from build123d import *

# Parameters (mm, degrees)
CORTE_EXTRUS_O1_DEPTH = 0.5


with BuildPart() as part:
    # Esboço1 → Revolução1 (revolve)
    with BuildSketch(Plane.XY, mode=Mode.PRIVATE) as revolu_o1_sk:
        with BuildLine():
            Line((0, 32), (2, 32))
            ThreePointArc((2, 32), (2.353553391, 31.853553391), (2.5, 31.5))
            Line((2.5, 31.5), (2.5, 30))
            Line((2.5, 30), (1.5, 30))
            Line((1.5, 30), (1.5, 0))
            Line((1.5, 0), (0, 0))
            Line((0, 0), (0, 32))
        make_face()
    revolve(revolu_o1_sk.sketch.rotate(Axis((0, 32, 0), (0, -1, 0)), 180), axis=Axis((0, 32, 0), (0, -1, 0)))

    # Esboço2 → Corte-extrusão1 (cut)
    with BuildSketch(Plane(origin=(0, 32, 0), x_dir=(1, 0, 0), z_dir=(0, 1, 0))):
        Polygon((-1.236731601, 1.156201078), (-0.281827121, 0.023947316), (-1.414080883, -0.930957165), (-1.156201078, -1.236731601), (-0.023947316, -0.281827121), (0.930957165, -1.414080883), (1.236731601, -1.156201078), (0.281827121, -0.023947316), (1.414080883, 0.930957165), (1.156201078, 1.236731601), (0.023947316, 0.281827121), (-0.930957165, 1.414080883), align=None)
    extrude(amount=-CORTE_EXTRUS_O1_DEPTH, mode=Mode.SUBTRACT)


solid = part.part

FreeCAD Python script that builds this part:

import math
import FreeCAD as App
import Part
import Sketcher

V = App.Vector


def add_polygon(sketch, points):
    """Adds a closed chain of lines whose ends are joined by coincident constraints."""
    first, n = sketch.GeometryCount, len(points)
    for a, b in zip(points, points[1:] + points[:1]):
        sketch.addGeometry(Part.LineSegment(App.Vector(*a, 0), App.Vector(*b, 0)), False)
    for i in range(n):
        sketch.addConstraint(Sketcher.Constraint("Coincident", first + i, 2, first + (i + 1) % n, 1))

doc = App.newDocument("Part")
body = doc.addObject("PartDesign::Body", "Body")

# Sketch on XY plane
sketch1 = body.newObject("Sketcher::SketchObject", "Sketch")
sketch1.AttachmentSupport = (doc.getObject("XY_Plane"), [""])
sketch1.MapMode = "FlatFace"
sketch1.addGeometry(Part.LineSegment(V(2, 32, 0), V(0, 32, 0)), False)
sketch1.addGeometry(Part.LineSegment(V(0, 32, 0), V(0, 0, 0)), False)
sketch1.addGeometry(Part.LineSegment(V(0, 0, 0), V(1.5, 0, 0)), False)
sketch1.addGeometry(Part.LineSegment(V(1.5, 0, 0), V(1.5, 30, 0)), False)
sketch1.addGeometry(Part.LineSegment(V(1.5, 30, 0), V(2.5, 30, 0)), False)
sketch1.addGeometry(Part.LineSegment(V(2.5, 30, 0), V(2.5, 31.5, 0)), False)
sketch1.addGeometry(Part.ArcOfCircle(Part.Circle(V(2, 31.5, 0), V(0, 0, 1), 0.5), math.radians(0), math.radians(90)), False)
sketch1.addConstraint(Sketcher.Constraint("Coincident", 0, 2, 1, 1))
sketch1.addConstraint(Sketcher.Constraint("Coincident", 1, 2, 2, 1))
sketch1.addConstraint(Sketcher.Constraint("Coincident", 2, 2, 3, 1))
sketch1.addConstraint(Sketcher.Constraint("Coincident", 3, 2, 4, 1))
sketch1.addConstraint(Sketcher.Constraint("Coincident", 4, 2, 5, 1))
sketch1.addConstraint(Sketcher.Constraint("Tangent", 5, 2, 6, 1))
sketch1.addConstraint(Sketcher.Constraint("Tangent", 6, 2, 0, 1))
sketch1.addConstraint(Sketcher.Constraint("Horizontal", 0))
sketch1.addConstraint(Sketcher.Constraint("Vertical", 1))
sketch1.addConstraint(Sketcher.Constraint("Horizontal", 2))
sketch1.addConstraint(Sketcher.Constraint("Vertical", 3))
sketch1.addConstraint(Sketcher.Constraint("Horizontal", 4))
sketch1.addConstraint(Sketcher.Constraint("Vertical", 5))
sketch1.addConstraint(Sketcher.Constraint("Coincident", 1, 2, -1, 1))
sketch1.addConstraint(Sketcher.Constraint("Equal", 2, 5))
sketch1.addConstraint(Sketcher.Constraint("Radius", 6, 0.5))
sketch1.addConstraint(Sketcher.Constraint("DistanceX", 0, 2, 0, 1, 2.0))
sketch1.addConstraint(Sketcher.Constraint("DistanceX", 4, 1, 4, 2, 1.0))
sketch1.addConstraint(Sketcher.Constraint("DistanceY", 1, 2, 1, 1, 32.0))
revolution = body.newObject("PartDesign::Revolution", "Revolution")
revolution.Profile = sketch1
revolution.ReferenceAxis = (sketch1, ["V_Axis"])
revolution.Angle = 360

# Sketch on XZ plane
sketch2 = body.newObject("Sketcher::SketchObject", "Sketch001")
sketch2.AttachmentSupport = (doc.getObject("XZ_Plane"), [""])
sketch2.MapMode = "FlatFace"
sketch2.AttachmentOffset = App.Placement(V(0, 0, -32), App.Rotation())
add_polygon(sketch2, [(-1.24, -1.16), (-0.28, -0.02), (-1.41, 0.93), (-1.16, 1.24), (-0.02, 0.28), (0.93, 1.41), (1.24, 1.16), (0.28, 0.02), (1.41, -0.93), (1.16, -1.24), (0.02, -0.28), (-0.93, -1.41)])  # lines 0-11
sketch2.addConstraint(Sketcher.Constraint("Symmetric", 0, 2, 6, 2, -1, 1))
sketch2.addConstraint(Sketcher.Constraint("Symmetric", 1, 2, 7, 2, -1, 1))
sketch2.addConstraint(Sketcher.Constraint("Symmetric", 2, 2, 8, 2, -1, 1))
sketch2.addConstraint(Sketcher.Constraint("Symmetric", 3, 2, 9, 2, -1, 1))
sketch2.addConstraint(Sketcher.Constraint("Symmetric", 4, 2, 10, 2, -1, 1))
sketch2.addConstraint(Sketcher.Constraint("Symmetric", 5, 2, 11, 2, -1, 1))
sketch2.addConstraint(Sketcher.Constraint("Perpendicular", 0, 1))
sketch2.addConstraint(Sketcher.Constraint("Perpendicular", 1, 2))
sketch2.addConstraint(Sketcher.Constraint("Perpendicular", 2, 3))
sketch2.addConstraint(Sketcher.Constraint("Perpendicular", 3, 4))
sketch2.addConstraint(Sketcher.Constraint("Perpendicular", 4, 5))
sketch2.addConstraint(Sketcher.Constraint("Equal", 0, 1))
sketch2.addConstraint(Sketcher.Constraint("Equal", 1, 3))
sketch2.addConstraint(Sketcher.Constraint("Equal", 3, 4))
sketch2.addConstraint(Sketcher.Constraint("Equal", 2, 5))
sketch2.addConstraint(Sketcher.Constraint("Distance", 2, 0.4))
sketch2.addConstraint(Sketcher.Constraint("DistanceX", 2, 2, -1, 1, 1.156201))
sketch2.addConstraint(Sketcher.Constraint("DistanceX", 1, 2, -1, 1, 1.414081))
pocket1 = body.newObject("PartDesign::Pocket", "Pocket")
pocket1.Profile = sketch2
pocket1.Length = 0.5
pocket1.Reversed = True

doc.recompute()
